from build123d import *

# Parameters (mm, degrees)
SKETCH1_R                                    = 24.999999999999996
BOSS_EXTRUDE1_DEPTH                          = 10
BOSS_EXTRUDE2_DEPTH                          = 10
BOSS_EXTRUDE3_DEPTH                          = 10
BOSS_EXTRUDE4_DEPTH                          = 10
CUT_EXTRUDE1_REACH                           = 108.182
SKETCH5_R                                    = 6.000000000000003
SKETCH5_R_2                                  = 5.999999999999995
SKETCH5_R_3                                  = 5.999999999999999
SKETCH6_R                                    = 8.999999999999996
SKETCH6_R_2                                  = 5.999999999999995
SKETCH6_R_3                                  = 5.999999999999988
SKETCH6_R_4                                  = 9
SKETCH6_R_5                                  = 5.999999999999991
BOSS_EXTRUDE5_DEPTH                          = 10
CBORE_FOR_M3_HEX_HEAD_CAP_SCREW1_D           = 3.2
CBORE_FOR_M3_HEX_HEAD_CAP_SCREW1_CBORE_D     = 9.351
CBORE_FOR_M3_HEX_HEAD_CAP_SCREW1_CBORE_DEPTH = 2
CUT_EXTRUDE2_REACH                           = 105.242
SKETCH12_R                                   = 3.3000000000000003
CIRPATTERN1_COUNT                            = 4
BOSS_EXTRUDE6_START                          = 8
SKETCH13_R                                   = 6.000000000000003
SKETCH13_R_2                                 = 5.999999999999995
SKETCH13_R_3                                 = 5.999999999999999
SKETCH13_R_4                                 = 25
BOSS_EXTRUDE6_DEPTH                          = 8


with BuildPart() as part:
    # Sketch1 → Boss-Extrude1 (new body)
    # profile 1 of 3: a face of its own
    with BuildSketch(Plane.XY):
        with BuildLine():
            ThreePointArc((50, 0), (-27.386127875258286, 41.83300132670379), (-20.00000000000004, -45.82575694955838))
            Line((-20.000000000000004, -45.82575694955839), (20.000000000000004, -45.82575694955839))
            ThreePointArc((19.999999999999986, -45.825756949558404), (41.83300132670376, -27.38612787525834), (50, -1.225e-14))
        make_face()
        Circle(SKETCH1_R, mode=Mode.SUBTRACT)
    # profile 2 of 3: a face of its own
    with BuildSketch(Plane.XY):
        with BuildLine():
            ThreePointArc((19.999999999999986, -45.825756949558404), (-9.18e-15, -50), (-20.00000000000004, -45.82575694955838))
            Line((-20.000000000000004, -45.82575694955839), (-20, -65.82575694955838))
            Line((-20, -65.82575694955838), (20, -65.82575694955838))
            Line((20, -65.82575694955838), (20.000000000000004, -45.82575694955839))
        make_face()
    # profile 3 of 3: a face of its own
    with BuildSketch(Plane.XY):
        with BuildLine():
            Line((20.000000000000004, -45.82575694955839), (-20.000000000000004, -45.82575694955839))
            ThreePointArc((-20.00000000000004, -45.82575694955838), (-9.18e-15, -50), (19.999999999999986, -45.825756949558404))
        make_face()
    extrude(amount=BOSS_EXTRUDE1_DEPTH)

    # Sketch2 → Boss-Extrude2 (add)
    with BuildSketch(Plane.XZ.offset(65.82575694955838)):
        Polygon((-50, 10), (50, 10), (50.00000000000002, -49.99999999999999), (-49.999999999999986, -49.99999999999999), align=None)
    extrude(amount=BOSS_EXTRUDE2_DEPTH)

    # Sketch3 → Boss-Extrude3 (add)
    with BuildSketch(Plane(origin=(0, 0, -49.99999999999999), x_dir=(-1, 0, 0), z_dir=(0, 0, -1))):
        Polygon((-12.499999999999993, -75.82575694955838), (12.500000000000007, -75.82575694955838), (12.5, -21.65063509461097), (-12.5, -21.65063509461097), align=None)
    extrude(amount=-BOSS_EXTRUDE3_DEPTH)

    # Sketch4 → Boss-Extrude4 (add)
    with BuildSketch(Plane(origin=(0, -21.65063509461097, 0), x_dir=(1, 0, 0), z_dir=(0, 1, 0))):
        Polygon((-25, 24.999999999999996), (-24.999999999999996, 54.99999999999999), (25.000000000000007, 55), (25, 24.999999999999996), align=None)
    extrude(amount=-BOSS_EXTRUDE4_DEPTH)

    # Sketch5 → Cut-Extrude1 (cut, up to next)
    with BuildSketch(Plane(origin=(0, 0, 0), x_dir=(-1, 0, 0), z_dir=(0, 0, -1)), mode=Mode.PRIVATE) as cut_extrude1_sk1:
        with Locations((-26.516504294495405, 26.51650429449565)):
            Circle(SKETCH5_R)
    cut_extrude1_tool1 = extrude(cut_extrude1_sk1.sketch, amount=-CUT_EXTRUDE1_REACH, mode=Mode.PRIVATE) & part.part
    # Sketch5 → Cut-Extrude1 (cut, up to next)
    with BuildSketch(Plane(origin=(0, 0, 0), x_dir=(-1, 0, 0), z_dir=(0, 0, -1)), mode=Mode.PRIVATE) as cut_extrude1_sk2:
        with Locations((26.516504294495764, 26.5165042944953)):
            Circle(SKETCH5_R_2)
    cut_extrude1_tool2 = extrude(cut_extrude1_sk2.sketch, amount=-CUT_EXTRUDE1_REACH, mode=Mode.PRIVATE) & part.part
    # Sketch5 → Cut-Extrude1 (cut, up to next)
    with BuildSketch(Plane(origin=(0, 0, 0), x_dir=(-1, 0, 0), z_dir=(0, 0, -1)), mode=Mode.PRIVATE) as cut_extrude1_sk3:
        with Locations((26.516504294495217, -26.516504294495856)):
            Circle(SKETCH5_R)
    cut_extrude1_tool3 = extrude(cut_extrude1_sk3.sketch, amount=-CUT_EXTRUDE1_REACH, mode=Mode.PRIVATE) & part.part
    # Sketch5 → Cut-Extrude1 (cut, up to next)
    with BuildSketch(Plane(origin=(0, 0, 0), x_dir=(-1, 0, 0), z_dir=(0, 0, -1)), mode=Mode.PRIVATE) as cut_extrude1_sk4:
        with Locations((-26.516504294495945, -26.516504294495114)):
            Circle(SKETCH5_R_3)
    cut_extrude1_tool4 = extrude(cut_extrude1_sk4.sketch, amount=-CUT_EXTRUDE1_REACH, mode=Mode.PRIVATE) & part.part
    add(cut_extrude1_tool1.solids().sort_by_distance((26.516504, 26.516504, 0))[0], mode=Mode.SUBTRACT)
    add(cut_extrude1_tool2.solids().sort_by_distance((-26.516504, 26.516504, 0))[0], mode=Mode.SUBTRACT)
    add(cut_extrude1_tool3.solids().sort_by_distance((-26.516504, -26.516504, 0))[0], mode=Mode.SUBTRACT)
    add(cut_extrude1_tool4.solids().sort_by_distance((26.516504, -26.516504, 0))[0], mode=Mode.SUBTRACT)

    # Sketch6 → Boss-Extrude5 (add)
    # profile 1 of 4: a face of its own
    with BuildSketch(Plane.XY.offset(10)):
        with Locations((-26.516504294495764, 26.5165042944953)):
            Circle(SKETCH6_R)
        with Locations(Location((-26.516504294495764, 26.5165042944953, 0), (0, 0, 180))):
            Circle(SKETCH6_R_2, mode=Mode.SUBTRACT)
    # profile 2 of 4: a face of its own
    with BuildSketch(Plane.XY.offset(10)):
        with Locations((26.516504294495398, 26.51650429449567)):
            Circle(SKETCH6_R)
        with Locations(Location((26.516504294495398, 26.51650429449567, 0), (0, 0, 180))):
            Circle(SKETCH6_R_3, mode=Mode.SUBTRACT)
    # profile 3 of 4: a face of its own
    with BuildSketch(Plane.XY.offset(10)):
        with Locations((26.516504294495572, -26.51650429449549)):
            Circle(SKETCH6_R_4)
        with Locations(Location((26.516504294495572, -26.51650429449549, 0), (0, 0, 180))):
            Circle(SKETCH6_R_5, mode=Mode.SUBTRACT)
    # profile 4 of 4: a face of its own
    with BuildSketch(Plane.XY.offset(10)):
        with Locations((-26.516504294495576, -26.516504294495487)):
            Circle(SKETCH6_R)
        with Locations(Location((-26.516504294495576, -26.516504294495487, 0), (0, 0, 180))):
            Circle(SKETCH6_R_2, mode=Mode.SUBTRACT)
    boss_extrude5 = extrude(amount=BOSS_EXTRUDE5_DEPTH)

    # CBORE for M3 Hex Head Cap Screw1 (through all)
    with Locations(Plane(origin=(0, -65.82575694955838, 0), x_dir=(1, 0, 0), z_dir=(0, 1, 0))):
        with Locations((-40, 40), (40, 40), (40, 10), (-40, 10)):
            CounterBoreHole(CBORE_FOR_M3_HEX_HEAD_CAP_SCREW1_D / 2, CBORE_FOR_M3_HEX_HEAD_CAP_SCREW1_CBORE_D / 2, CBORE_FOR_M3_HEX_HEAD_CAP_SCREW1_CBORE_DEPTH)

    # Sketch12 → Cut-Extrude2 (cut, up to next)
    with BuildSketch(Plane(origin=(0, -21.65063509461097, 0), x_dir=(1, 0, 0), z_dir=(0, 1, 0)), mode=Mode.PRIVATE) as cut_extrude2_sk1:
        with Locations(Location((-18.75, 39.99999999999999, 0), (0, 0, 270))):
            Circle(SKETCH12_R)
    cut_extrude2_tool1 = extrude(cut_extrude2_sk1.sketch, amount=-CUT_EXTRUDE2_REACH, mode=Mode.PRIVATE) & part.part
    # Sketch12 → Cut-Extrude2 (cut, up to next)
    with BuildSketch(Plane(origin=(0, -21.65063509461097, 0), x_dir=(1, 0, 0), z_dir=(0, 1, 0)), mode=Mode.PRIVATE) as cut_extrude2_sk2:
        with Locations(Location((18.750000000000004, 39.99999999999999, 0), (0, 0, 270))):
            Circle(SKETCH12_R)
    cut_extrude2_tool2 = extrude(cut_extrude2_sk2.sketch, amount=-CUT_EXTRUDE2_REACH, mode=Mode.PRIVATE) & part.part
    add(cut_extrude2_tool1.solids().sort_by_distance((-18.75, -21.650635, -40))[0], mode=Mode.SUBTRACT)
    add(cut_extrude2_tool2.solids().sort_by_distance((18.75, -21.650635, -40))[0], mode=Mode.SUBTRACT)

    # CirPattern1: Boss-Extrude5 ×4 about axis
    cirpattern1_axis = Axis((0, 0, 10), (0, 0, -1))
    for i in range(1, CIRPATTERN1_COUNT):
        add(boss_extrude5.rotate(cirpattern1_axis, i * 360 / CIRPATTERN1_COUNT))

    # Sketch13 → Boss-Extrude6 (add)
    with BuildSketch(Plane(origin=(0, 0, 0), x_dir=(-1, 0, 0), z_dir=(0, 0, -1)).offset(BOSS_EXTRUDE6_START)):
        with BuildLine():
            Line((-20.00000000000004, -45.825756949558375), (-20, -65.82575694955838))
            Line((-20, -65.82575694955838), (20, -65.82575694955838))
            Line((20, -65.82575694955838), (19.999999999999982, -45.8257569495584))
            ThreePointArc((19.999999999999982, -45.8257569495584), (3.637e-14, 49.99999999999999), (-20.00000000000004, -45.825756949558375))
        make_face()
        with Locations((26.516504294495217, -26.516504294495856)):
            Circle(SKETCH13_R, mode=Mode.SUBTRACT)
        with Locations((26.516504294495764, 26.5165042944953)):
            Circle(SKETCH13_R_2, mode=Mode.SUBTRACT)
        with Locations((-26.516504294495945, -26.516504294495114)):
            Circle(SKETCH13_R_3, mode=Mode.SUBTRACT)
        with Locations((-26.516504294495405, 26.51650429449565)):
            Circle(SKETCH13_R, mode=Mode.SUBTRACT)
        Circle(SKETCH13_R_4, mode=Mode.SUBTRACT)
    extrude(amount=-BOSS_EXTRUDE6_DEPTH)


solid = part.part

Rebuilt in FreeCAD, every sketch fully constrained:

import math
import FreeCAD as App
import Part
import Sketcher

doc = App.newDocument("Part")
body = doc.addObject("PartDesign::Body", "Body")

# Sketch on XY plane
sketch1 = body.newObject("Sketcher::SketchObject", "Sketch")
sketch1.AttachmentSupport = (doc.getObject("XY_Plane"), [""])
sketch1.MapMode = "FlatFace"
sketch1.addGeometry([
    Part.ArcOfCircle(Part.Circle(App.Vector(0, 0, 0), App.Vector(0, 0, 1), 50), math.radians(-66), math.radians(246)),  # 0
    Part.LineSegment(App.Vector(-20, -46, 0), App.Vector(-20, -66, 0)),  # 1
    Part.LineSegment(App.Vector(-20, -66, 0), App.Vector(20, -66, 0)),  # 2
    Part.LineSegment(App.Vector(20, -66, 0), App.Vector(20, -46, 0)),  # 3
    Part.Circle(App.Vector(0, 0, 0), App.Vector(0, 0, 1), 25),  # 4
], False)
sketch1.addConstraint([
    Sketcher.Constraint("Coincident", 0, 2, 1, 1),
    Sketcher.Constraint("Coincident", 1, 2, 2, 1),
    Sketcher.Constraint("Coincident", 2, 2, 3, 1),
    Sketcher.Constraint("Coincident", 3, 2, 0, 1),
    Sketcher.Constraint("Vertical", 1),
    Sketcher.Constraint("Horizontal", 2),
    Sketcher.Constraint("Vertical", 3),
    Sketcher.Constraint("Coincident", 0, 3, -1, 1),
    Sketcher.Constraint("Coincident", 4, 3, -1, 1),
    Sketcher.Constraint("Horizontal", 0, 2, 3, 2),
    Sketcher.Constraint("Diameter", 4, 50.0),
    Sketcher.Constraint("Radius", 0, 50.0),
    Sketcher.Constraint("DistanceX", 2, 1, 2, 2, 40.0),
    Sketcher.Constraint("DistanceY", 1, 2, 1, 1, 20.0),
])
pad1 = body.newObject("PartDesign::Pad", "Pad")
pad1.Profile = sketch1
pad1.Length = 10

# Sketch on XZ plane
sketch2 = body.newObject("Sketcher::SketchObject", "Sketch001")
sketch2.AttachmentSupport = (doc.getObject("XZ_Plane"), [""])
sketch2.MapMode = "FlatFace"
sketch2.AttachmentOffset = App.Placement(App.Vector(0, 0, 65.825757), App.Rotation())
sketch2.addGeometry([
    Part.LineSegment(App.Vector(50, 10, 0), App.Vector(-50, 10, 0)),
    Part.LineSegment(App.Vector(-50, 10, 0), App.Vector(-50, -50, 0)),
    Part.LineSegment(App.Vector(-50, -50, 0), App.Vector(50, -50, 0)),
    Part.LineSegment(App.Vector(50, -50, 0), App.Vector(50, 10, 0)),
], False)
sketch2.addConstraint([
    Sketcher.Constraint("Coincident", 0, 2, 1, 1),
    Sketcher.Constraint("Coincident", 1, 2, 2, 1),
    Sketcher.Constraint("Coincident", 2, 2, 3, 1),
    Sketcher.Constraint("Coincident", 3, 2, 0, 1),
    Sketcher.Constraint("Horizontal", 0),
    Sketcher.Constraint("Vertical", 1),
    Sketcher.Constraint("Horizontal", 2),
    Sketcher.Constraint("Vertical", 3),
    Sketcher.Constraint("DistanceX", 0, 2, 0, 1, 100.0),
    Sketcher.Constraint("DistanceY", 1, 2, 1, 1, 60.0),
    Sketcher.Constraint("DistanceX", 0, 2, -1, 1, 50.0),
    Sketcher.Constraint("DistanceY", -1, 1, 0, 2, 10.0),
])
pad2 = body.newObject("PartDesign::Pad", "Pad001")
pad2.Profile = sketch2
pad2.Length = 10

# Sketch on XY plane
sketch3 = body.newObject("Sketcher::SketchObject", "Sketch002")
sketch3.AttachmentSupport = (doc.getObject("XY_Plane"), [""])
sketch3.MapMode = "FlatFace"
sketch3.AttachmentOffset = App.Placement(App.Vector(0, 0, -50), App.Rotation())
sketch3.addGeometry([
    Part.LineSegment(App.Vector(12, -76, 0), App.Vector(-12, -76, 0)),
    Part.LineSegment(App.Vector(-12, -76, 0), App.Vector(-12, -22, 0)),
    Part.LineSegment(App.Vector(-12, -22, 0), App.Vector(12, -22, 0)),
    Part.LineSegment(App.Vector(12, -22, 0), App.Vector(12, -76, 0)),
], False)
sketch3.addConstraint([
    Sketcher.Constraint("Coincident", 0, 2, 1, 1),
    Sketcher.Constraint("Coincident", 1, 2, 2, 1),
    Sketcher.Constraint("Coincident", 2, 2, 3, 1),
    Sketcher.Constraint("Coincident", 3, 2, 0, 1),
    Sketcher.Constraint("Horizontal", 0),
    Sketcher.Constraint("Vertical", 1),
    Sketcher.Constraint("Horizontal", 2),
    Sketcher.Constraint("Vertical", 3),
    Sketcher.Constraint("DistanceX", 0, 2, 0, 1, 25.0),
    Sketcher.Constraint("DistanceX", 0, 2, -1, 1, 12.5),
    Sketcher.Constraint("DistanceY", 1, 1, 1, 2, 54.175122),
    Sketcher.Constraint("DistanceY", 0, 2, -1, 1, 75.825757),
])
pad3 = body.newObject("PartDesign::Pad", "Pad002")
pad3.Profile = sketch3
pad3.Length = 10

# Sketch on XZ plane
sketch4 = body.newObject("Sketcher::SketchObject", "Sketch003")
sketch4.AttachmentSupport = (doc.getObject("XZ_Plane"), [""])
sketch4.MapMode = "FlatFace"
sketch4.AttachmentOffset = App.Placement(App.Vector(0, 0, 21.650635), App.Rotation())
sketch4.addGeometry([
    Part.LineSegment(App.Vector(-25, -55, 0), App.Vector(-25, -25, 0)),
    Part.LineSegment(App.Vector(-25, -25, 0), App.Vector(25, -25, 0)),
    Part.LineSegment(App.Vector(25, -25, 0), App.Vector(25, -55, 0)),
    Part.LineSegment(App.Vector(25, -55, 0), App.Vector(-25, -55, 0)),
], False)
sketch4.addConstraint([
    Sketcher.Constraint("Coincident", 0, 2, 1, 1),
    Sketcher.Constraint("Coincident", 1, 2, 2, 1),
    Sketcher.Constraint("Coincident", 2, 2, 3, 1),
    Sketcher.Constraint("Coincident", 3, 2, 0, 1),
    Sketcher.Constraint("Vertical", 0),
    Sketcher.Constraint("Horizontal", 1),
    Sketcher.Constraint("Vertical", 2),
    Sketcher.Constraint("Horizontal", 3),
    Sketcher.Constraint("DistanceX", 1, 1, 1, 2, 50.0),
    Sketcher.Constraint("DistanceY", 0, 1, 0, 2, 30.0),
    Sketcher.Constraint("DistanceX", 0, 2, -1, 1, 25.0),
    Sketcher.Constraint("DistanceY", 0, 2, -1, 1, 25.0),
])
pad4 = body.newObject("PartDesign::Pad", "Pad003")
pad4.Profile = sketch4
pad4.Length = 10

# Sketch on XY plane
sketch5 = body.newObject("Sketcher::SketchObject", "Sketch004")
sketch5.AttachmentSupport = (doc.getObject("XY_Plane"), [""])
sketch5.MapMode = "FlatFace"
sketch5.addGeometry(Part.Circle(App.Vector(27, 27, 0), App.Vector(0, 0, 1), 6), False)
sketch5.addConstraint([
    Sketcher.Constraint("Diameter", 0, 12.0),
    Sketcher.Constraint("DistanceX", -1, 1, 0, 3, 26.516504),
    Sketcher.Constraint("DistanceY", -1, 1, 0, 3, 26.516504),
])
pocket1 = body.newObject("PartDesign::Pocket", "Pocket")
pocket1.Profile = sketch5
pocket1.Type = "UpToFirst"
pocket1.Reversed = True

# Sketch on XY plane
sketch6 = body.newObject("Sketcher::SketchObject", "Sketch005")
sketch6.AttachmentSupport = (doc.getObject("XY_Plane"), [""])
sketch6.MapMode = "FlatFace"
sketch6.addGeometry(Part.Circle(App.Vector(-27, 27, 0), App.Vector(0, 0, 1), 6), False)
sketch6.addConstraint([
    Sketcher.Constraint("Diameter", 0, 12.0),
    Sketcher.Constraint("DistanceX", 0, 3, -1, 1, 26.516504),
    Sketcher.Constraint("DistanceY", -1, 1, 0, 3, 26.516504),
])
pocket2 = body.newObject("PartDesign::Pocket", "Pocket001")
pocket2.Profile = sketch6
pocket2.Type = "UpToFirst"
pocket2.Reversed = True

# Sketch on XY plane
sketch7 = body.newObject("Sketcher::SketchObject", "Sketch006")
sketch7.AttachmentSupport = (doc.getObject("XY_Plane"), [""])
sketch7.MapMode = "FlatFace"
sketch7.addGeometry(Part.Circle(App.Vector(-27, -27, 0), App.Vector(0, 0, 1), 6), False)
sketch7.addConstraint([
    Sketcher.Constraint("Diameter", 0, 12.0),
    Sketcher.Constraint("DistanceX", 0, 3, -1, 1, 26.516504),
    Sketcher.Constraint("DistanceY", 0, 3, -1, 1, 26.516504),
])
pocket3 = body.newObject("PartDesign::Pocket", "Pocket002")
pocket3.Profile = sketch7
pocket3.Type = "UpToFirst"
pocket3.Reversed = True

# Sketch on XY plane
sketch8 = body.newObject("Sketcher::SketchObject", "Sketch007")
sketch8.AttachmentSupport = (doc.getObject("XY_Plane"), [""])
sketch8.MapMode = "FlatFace"
sketch8.addGeometry(Part.Circle(App.Vector(27, -27, 0), App.Vector(0, 0, 1), 6), False)
sketch8.addConstraint([
    Sketcher.Constraint("Diameter", 0, 12.0),
    Sketcher.Constraint("DistanceX", -1, 1, 0, 3, 26.516504),
    Sketcher.Constraint("DistanceY", 0, 3, -1, 1, 26.516504),
])
pocket4 = body.newObject("PartDesign::Pocket", "Pocket003")
pocket4.Profile = sketch8
pocket4.Type = "UpToFirst"
pocket4.Reversed = True

# Sketch on XY plane
sketch9 = body.newObject("Sketcher::SketchObject", "Sketch008")
sketch9.AttachmentSupport = (doc.getObject("XY_Plane"), [""])
sketch9.MapMode = "FlatFace"
sketch9.AttachmentOffset = App.Placement(App.Vector(0, 0, 10), App.Rotation())
sketch9.addGeometry([
    Part.Circle(App.Vector(-27, 27, 0), App.Vector(0, 0, 1), 9),  # 0
    Part.Circle(App.Vector(-27, 27, 0), App.Vector(0, 0, 1), 6),  # 1
    Part.Circle(App.Vector(27, 27, 0), App.Vector(0, 0, 1), 9),  # 2
    Part.Circle(App.Vector(27, 27, 0), App.Vector(0, 0, 1), 6),  # 3
    Part.Circle(App.Vector(27, -27, 0), App.Vector(0, 0, 1), 9),  # 4
    Part.Circle(App.Vector(27, -27, 0), App.Vector(0, 0, 1), 6),  # 5
    Part.Circle(App.Vector(-27, -27, 0), App.Vector(0, 0, 1), 9),  # 6
    Part.Circle(App.Vector(-27, -27, 0), App.Vector(0, 0, 1), 6),  # 7
], False)
sketch9.addConstraint([
    Sketcher.Constraint("Coincident", 1, 3, 0, 3),
    Sketcher.Constraint("Coincident", 3, 3, 2, 3),
    Sketcher.Constraint("Coincident", 5, 3, 4, 3),
    Sketcher.Constraint("Coincident", 7, 3, 6, 3),
    Sketcher.Constraint("Equal", 0, 2),
    Sketcher.Constraint("Equal", 1, 3),
    Sketcher.Constraint("Equal", 2, 4),
    Sketcher.Constraint("Equal", 3, 5),
    Sketcher.Constraint("Equal", 4, 6),
    Sketcher.Constraint("Equal", 5, 7),
    Sketcher.Constraint("Symmetric", 0, 3, 4, 3, -1, 1),
    Sketcher.Constraint("Symmetric", 2, 3, 6, 3, -1, 1),
    Sketcher.Constraint("Symmetric", 0, 3, 2, 3, -2),
    Sketcher.Constraint("Diameter", 0, 18.0),
    Sketcher.Constraint("Diameter", 1, 12.0),
    Sketcher.Constraint("DistanceX", 0, 3, 2, 3, 53.033009),
    Sketcher.Constraint("DistanceY", 4, 3, 2, 3, 53.033009),
])
pad5 = body.newObject("PartDesign::Pad", "Pad004")
pad5.Profile = sketch9
pad5.Length = 10

# Sketch on XZ plane
sketch10 = body.newObject("Sketcher::SketchObject", "Sketch009")
sketch10.AttachmentSupport = (doc.getObject("XZ_Plane"), [""])
sketch10.MapMode = "FlatFace"
sketch10.AttachmentOffset = App.Placement(App.Vector(0, 0, 65.825757), App.Rotation())
sketch10.addGeometry([
    Part.Circle(App.Vector(-40, -40, 0), App.Vector(0, 0, 1), 1.6),
    Part.Circle(App.Vector(40, -40, 0), App.Vector(0, 0, 1), 1.6),
    Part.Circle(App.Vector(40, -10, 0), App.Vector(0, 0, 1), 1.6),
    Part.Circle(App.Vector(-40, -10, 0), App.Vector(0, 0, 1), 1.6),
], False)
sketch10.addConstraint([
    Sketcher.Constraint("Equal", 0, 1),
    Sketcher.Constraint("Equal", 1, 2),
    Sketcher.Constraint("Equal", 2, 3),
    Sketcher.Constraint("Symmetric", 0, 3, 1, 3, -2),
    Sketcher.Constraint("Symmetric", 2, 3, 3, 3, -2),
    Sketcher.Constraint("Vertical", 1, 3, 2, 3),
    Sketcher.Constraint("Diameter", 0, 3.2),
    Sketcher.Constraint("DistanceX", 0, 3, -1, 1, 40.0),
    Sketcher.Constraint("DistanceY", 0, 3, -1, 1, 40.0),
    Sketcher.Constraint("DistanceY", 2, 3, -1, 1, 10.0),
])
doc.recompute()
hole = body.newObject("PartDesign::Hole", "Hole")
hole.Profile = sketch10
hole.ThreadType = "None"
hole.Diameter = 3.2
hole.DepthType = "ThroughAll"
hole.HoleCutType = "Counterbore"
hole.HoleCutDiameter = 9.351
hole.HoleCutDepth = 2
hole.Reversed = True

# Sketch on XZ plane
sketch11 = body.newObject("Sketcher::SketchObject", "Sketch010")
sketch11.AttachmentSupport = (doc.getObject("XZ_Plane"), [""])
sketch11.MapMode = "FlatFace"
sketch11.AttachmentOffset = App.Placement(App.Vector(0, 0, 21.650635), App.Rotation())
sketch11.addGeometry(Part.Circle(App.Vector(-18.8, -40, 0), App.Vector(0, 0, 1), 3.3), False)
sketch11.addConstraint([
    Sketcher.Constraint("Diameter", 0, 6.6),
    Sketcher.Constraint("DistanceY", 0, 3, -1, 1, 40.0),
    Sketcher.Constraint("DistanceX", 0, 3, -1, 1, 18.75),
])
pocket5 = body.newObject("PartDesign::Pocket", "Pocket004")
pocket5.Profile = sketch11
pocket5.Type = "UpToFirst"
pocket5.Reversed = True

# Sketch on XZ plane
sketch12 = body.newObject("Sketcher::SketchObject", "Sketch011")
sketch12.AttachmentSupport = (doc.getObject("XZ_Plane"), [""])
sketch12.MapMode = "FlatFace"
sketch12.AttachmentOffset = App.Placement(App.Vector(0, 0, 21.650635), App.Rotation())
sketch12.addGeometry(Part.Circle(App.Vector(18.8, -40, 0), App.Vector(0, 0, 1), 3.3), False)
sketch12.addConstraint([
    Sketcher.Constraint("Diameter", 0, 6.6),
    Sketcher.Constraint("DistanceY", 0, 3, -1, 1, 40.0),
    Sketcher.Constraint("DistanceX", -1, 1, 0, 3, 18.75),
])
pocket6 = body.newObject("PartDesign::Pocket", "Pocket005")
pocket6.Profile = sketch12
pocket6.Type = "UpToFirst"
pocket6.Reversed = True
doc.recompute()

polarpattern = body.newObject("PartDesign::PolarPattern", "PolarPattern")
polarpattern.Originals = [pad5]
polarpattern.Axis = (doc.getObject("Z_Axis"), [""])
polarpattern.Angle = 360
polarpattern.Occurrences = 4
body.Tip = polarpattern

# Sketch on XY plane
sketch13 = body.newObject("Sketcher::SketchObject", "Sketch012")
sketch13.AttachmentSupport = (doc.getObject("XY_Plane"), [""])
sketch13.MapMode = "FlatFace"
sketch13.AttachmentOffset = App.Placement(App.Vector(0, 0, -8), App.Rotation())
sketch13.addGeometry([
    Part.LineSegment(App.Vector(20, -46, 0), App.Vector(20, -66, 0)),  # 0
    Part.LineSegment(App.Vector(20, -66, 0), App.Vector(-20, -66, 0)),  # 1
    Part.LineSegment(App.Vector(-20, -66, 0), App.Vector(-20, -46, 0)),  # 2
    Part.ArcOfCircle(Part.Circle(App.Vector(0, 0, 0), App.Vector(0, 0, 1), 50), math.radians(-66), math.radians(246)),  # 3
    Part.Circle(App.Vector(27, -27, 0), App.Vector(0, 0, 1), 6),  # 4
    Part.Circle(App.Vector(-27, -27, 0), App.Vector(0, 0, 1), 6),  # 5
    Part.Circle(App.Vector(27, 27, 0), App.Vector(0, 0, 1), 6),  # 6
    Part.Circle(App.Vector(0, 0, 0), App.Vector(0, 0, 1), 25),  # 7
    Part.Circle(App.Vector(-27, 27, 0), App.Vector(0, 0, 1), 6),  # 8
], False)
sketch13.addConstraint([
    Sketcher.Constraint("Coincident", 0, 2, 1, 1),
    Sketcher.Constraint("Coincident", 1, 2, 2, 1),
    Sketcher.Constraint("Coincident", 2, 2, 3, 2),
    Sketcher.Constraint("Coincident", 3, 1, 0, 1),
    Sketcher.Constraint("Vertical", 0),
    Sketcher.Constraint("Horizontal", 1),
    Sketcher.Constraint("Vertical", 2),
    Sketcher.Constraint("Coincident", 3, 3, -1, 1),
    Sketcher.Constraint("Coincident", 7, 3, -1, 1),
    Sketcher.Constraint("Equal", 4, 5),
    Sketcher.Constraint("Equal", 5, 6),
    Sketcher.Constraint("Equal", 6, 8),
    Sketcher.Constraint("Symmetric", 5, 3, 6, 3, -1, 1),
    Sketcher.Constraint("Symmetric", 4, 3, 8, 3, -1, 1),
    Sketcher.Constraint("Symmetric", 4, 3, 5, 3, -2),
    Sketcher.Constraint("Horizontal", 2, 2, 3, 1),
    Sketcher.Constraint("Diameter", 4, 12.0),
    Sketcher.Constraint("Diameter", 7, 50.0),
    Sketcher.Constraint("Radius", 3, 50.0),
    Sketcher.Constraint("DistanceX", 1, 2, 1, 1, 40.0),
    Sketcher.Constraint("DistanceY", 0, 2, 0, 1, 20.0),
    Sketcher.Constraint("DistanceX", 5, 3, 4, 3, 53.033009),
    Sketcher.Constraint("DistanceY", 4, 3, 6, 3, 53.033009),
])
pad6 = body.newObject("PartDesign::Pad", "Pad005")
pad6.Profile = sketch13
pad6.Length = 8

doc.recompute()
